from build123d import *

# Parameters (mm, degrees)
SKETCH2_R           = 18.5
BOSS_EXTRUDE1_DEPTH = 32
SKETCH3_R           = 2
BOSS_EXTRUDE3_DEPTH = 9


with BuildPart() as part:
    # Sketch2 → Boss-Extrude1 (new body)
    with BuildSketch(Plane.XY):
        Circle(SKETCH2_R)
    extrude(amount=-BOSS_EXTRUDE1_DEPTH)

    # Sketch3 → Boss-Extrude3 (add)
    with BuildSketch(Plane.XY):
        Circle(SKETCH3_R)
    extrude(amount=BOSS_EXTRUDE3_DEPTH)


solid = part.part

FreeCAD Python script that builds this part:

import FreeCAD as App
import Part
import Sketcher

V = App.Vector

doc = App.newDocument("Part")
body = doc.addObject("PartDesign::Body", "Body")

# Sketch on XY plane
sketch1 = body.newObject("Sketcher::SketchObject", "Sketch")
sketch1.AttachmentSupport = (doc.getObject("XY_Plane"), [""])
sketch1.MapMode = "FlatFace"
sketch1.addGeometry(Part.Circle(V(0, 0, 0), V(0, 0, 1), 18), False)
sketch1.addConstraint(Sketcher.Constraint("Coincident", 0, 3, -1, 1))
sketch1.addConstraint(Sketcher.Constraint("Diameter", 0, 37.0))
pad1 = body.newObject("PartDesign::Pad", "Pad")
pad1.Profile = sketch1
pad1.Length = 32
pad1.Reversed = True

# Sketch on XY plane
sketch2 = body.newObject("Sketcher::SketchObject", "Sketch001")
sketch2.AttachmentSupport = (doc.getObject("XY_Plane"), [""])
sketch2.MapMode = "FlatFace"
sketch2.addGeometry(Part.Circle(V(0, 0, 0), V(0, 0, 1), 2), False)
sketch2.addConstraint(Sketcher.Constraint("Coincident", 0, 3, -1, 1))
sketch2.addConstraint(Sketcher.Constraint("Diameter", 0, 4.0))
pad2 = body.newObject("PartDesign::Pad", "Pad001")
pad2.Profile = sketch2
pad2.Length = 9

doc.recompute()
